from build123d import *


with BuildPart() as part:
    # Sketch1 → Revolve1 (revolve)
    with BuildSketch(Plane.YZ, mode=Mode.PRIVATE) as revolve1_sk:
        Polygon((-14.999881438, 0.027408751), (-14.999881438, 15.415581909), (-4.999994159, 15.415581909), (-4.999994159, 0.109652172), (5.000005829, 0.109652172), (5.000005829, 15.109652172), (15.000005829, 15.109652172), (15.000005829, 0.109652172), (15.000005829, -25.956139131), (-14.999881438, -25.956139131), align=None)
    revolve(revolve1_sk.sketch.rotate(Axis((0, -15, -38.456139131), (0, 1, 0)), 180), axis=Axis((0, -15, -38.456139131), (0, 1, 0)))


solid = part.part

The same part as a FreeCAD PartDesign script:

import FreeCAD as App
import Part
import Sketcher
from FreeCAD import Vector

doc = App.newDocument("Part")
params = doc.addObject("Spreadsheet::Sheet", "Params")
for row, (alias, value) in enumerate([
    ("sketch1_width", "10 mm"),
    ("sketch1_height", "15 mm"),
    ("revolution_angle", "360 deg"),
], start=1):
    params.set(f"A{row}", alias)
    params.set(f"B{row}", "=" + value)
    params.setAlias(f"B{row}", alias)

body = doc.addObject("PartDesign::Body", "Body")

sketch1 = body.newObject("Sketcher::SketchObject", "Sketch")
sketch1.AttachmentSupport = (doc.getObject("YZ_Plane"), [""])
sketch1.MapMode = "FlatFace"
sketch1.addGeometry([
    Part.LineSegment(Vector(-15, 15, 0), Vector(-15, -26, 0)),
    Part.LineSegment(Vector(-15, -26, 0), Vector(15, -26, 0)),
    Part.LineSegment(Vector(15, -26, 0), Vector(15, 15, 0)),
    Part.LineSegment(Vector(15, 15, 0), Vector(5, 15, 0)),
    Part.LineSegment(Vector(5, 15, 0), Vector(5, 0, 0)),
    Part.LineSegment(Vector(5, 0, 0), Vector(-5, 0, 0)),
    Part.LineSegment(Vector(-5, 0, 0), Vector(-5, 15, 0)),
    Part.LineSegment(Vector(-5, 15, 0), Vector(-15, 15, 0)),
], False)
sketch1.addGeometry(Part.LineSegment(Vector(-15, -38, 0), Vector(15, -38, 0)), True)
sketch1.addConstraint([
    Sketcher.Constraint("Coincident", 0, 2, 1, 1),
    Sketcher.Constraint("Coincident", 1, 2, 2, 1),
    Sketcher.Constraint("Coincident", 2, 2, 3, 1),
    Sketcher.Constraint("Coincident", 3, 2, 4, 1),
    Sketcher.Constraint("Coincident", 4, 2, 5, 1),
    Sketcher.Constraint("Coincident", 5, 2, 6, 1),
    Sketcher.Constraint("Coincident", 6, 2, 7, 1),
    Sketcher.Constraint("Coincident", 7, 2, 0, 1),
    Sketcher.Constraint("Vertical", 0),
    Sketcher.Constraint("Horizontal", 1),
    Sketcher.Constraint("Vertical", 2),
    Sketcher.Constraint("Horizontal", 3),
    Sketcher.Constraint("Vertical", 4),
    Sketcher.Constraint("Horizontal", 5),
    Sketcher.Constraint("Vertical", 6),
    Sketcher.Constraint("Horizontal", 7),
    Sketcher.Constraint("Horizontal", 8),
    Sketcher.Constraint("Vertical", 7, 2, 8, 1),
    Sketcher.Constraint("Vertical", 2, 2, 8, 2),
    Sketcher.Constraint("Equal", 3, 5),
    Sketcher.Constraint("DistanceX", 3, 2, 3, 1, 10.0),
    Sketcher.Constraint("DistanceY", 4, 2, 4, 1, 15.0),
    Sketcher.Constraint("DistanceY", 8, 1, 0, 2, 12.5),
    Sketcher.Constraint("DistanceY", 0, 2, 0, 1, 41.371721),
    Sketcher.Constraint("DistanceY", 2, 1, 2, 2, 41.065791),
    Sketcher.Constraint("DistanceX", 1, 1, 1, 2, 29.999887),
    Sketcher.Constraint("DistanceX", 0, 2, -1, 1, 14.999881),
    Sketcher.Constraint("DistanceY", 0, 2, -1, 1, 25.956139),
])
sketch1.setExpression("Constraints[20]", "Params.sketch1_width")
sketch1.setExpression("Constraints[21]", "Params.sketch1_height")
revolution = body.newObject("PartDesign::Revolution", "Revolution")
revolution.Profile = sketch1
revolution.ReferenceAxis = (sketch1, ["Axis0"])
revolution.setExpression("Angle", "Params.revolution_angle")

doc.recompute()
